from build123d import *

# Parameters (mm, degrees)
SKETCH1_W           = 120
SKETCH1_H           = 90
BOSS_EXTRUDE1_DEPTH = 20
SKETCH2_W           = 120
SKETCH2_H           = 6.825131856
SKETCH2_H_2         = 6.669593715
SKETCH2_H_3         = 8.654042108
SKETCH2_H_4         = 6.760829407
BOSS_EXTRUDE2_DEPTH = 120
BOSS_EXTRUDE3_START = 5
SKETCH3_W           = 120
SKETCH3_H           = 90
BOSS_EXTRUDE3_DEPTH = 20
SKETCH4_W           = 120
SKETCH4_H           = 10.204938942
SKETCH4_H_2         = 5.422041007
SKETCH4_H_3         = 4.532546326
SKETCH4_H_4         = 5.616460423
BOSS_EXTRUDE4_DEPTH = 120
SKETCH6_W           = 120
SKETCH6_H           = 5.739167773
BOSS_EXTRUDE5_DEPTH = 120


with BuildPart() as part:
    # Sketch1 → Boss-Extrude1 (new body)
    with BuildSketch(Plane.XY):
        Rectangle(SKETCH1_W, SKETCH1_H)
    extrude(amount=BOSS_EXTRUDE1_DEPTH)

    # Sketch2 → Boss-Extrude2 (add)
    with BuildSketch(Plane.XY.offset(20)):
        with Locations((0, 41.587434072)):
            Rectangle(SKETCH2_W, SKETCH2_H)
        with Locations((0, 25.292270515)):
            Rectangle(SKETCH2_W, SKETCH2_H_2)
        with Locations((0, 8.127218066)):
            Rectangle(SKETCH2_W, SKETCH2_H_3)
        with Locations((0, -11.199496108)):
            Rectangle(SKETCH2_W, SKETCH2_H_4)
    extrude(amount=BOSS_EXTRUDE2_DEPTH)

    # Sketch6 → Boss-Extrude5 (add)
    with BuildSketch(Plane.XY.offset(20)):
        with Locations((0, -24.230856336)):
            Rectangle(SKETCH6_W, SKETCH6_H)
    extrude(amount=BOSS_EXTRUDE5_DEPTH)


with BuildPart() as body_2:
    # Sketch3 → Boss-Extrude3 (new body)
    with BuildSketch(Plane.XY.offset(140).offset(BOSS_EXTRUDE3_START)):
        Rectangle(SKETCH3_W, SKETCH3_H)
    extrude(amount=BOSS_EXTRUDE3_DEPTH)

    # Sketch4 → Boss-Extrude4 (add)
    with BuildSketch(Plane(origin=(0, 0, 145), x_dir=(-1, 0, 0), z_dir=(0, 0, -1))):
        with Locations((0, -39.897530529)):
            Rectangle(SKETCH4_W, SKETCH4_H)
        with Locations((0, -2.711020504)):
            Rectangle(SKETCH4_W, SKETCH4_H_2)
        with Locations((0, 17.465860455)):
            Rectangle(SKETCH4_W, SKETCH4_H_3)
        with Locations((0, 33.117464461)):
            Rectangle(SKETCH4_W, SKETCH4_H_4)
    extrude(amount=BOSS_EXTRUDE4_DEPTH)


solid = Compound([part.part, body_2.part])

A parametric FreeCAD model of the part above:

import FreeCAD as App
import Part
import Sketcher
from FreeCAD import Vector

doc = App.newDocument("Part")
body = doc.addObject("PartDesign::Body", "Body")

# Sketch on XY plane
sketch1 = body.newObject("Sketcher::SketchObject", "Sketch")
sketch1.AttachmentSupport = (doc.getObject("XY_Plane"), [""])
sketch1.MapMode = "FlatFace"
sketch1.addGeometry([
    Part.LineSegment(Vector(-60, 45, 0), Vector(-60, -45, 0)),
    Part.LineSegment(Vector(-60, -45, 0), Vector(60, -45, 0)),
    Part.LineSegment(Vector(60, -45, 0), Vector(60, 45, 0)),
    Part.LineSegment(Vector(60, 45, 0), Vector(-60, 45, 0)),
], False)
sketch1.addConstraint([
    Sketcher.Constraint("Coincident", 0, 2, 1, 1),
    Sketcher.Constraint("Coincident", 1, 2, 2, 1),
    Sketcher.Constraint("Coincident", 2, 2, 3, 1),
    Sketcher.Constraint("Coincident", 3, 2, 0, 1),
    Sketcher.Constraint("Vertical", 0),
    Sketcher.Constraint("Horizontal", 1),
    Sketcher.Constraint("Vertical", 2),
    Sketcher.Constraint("Horizontal", 3),
    Sketcher.Constraint("Symmetric", 0, 2, 2, 2, -1, 1),
    Sketcher.Constraint("DistanceX", 1, 1, 1, 2, 120.0),
    Sketcher.Constraint("DistanceY", 0, 2, 0, 1, 90.0),
])
pad1 = body.newObject("PartDesign::Pad", "Pad")
pad1.Profile = sketch1
pad1.Length = 20

# Sketch on XY plane
sketch2 = body.newObject("Sketcher::SketchObject", "Sketch001")
sketch2.AttachmentSupport = (doc.getObject("XY_Plane"), [""])
sketch2.MapMode = "FlatFace"
sketch2.AttachmentOffset = App.Placement(Vector(0, 0, 20), App.Rotation())
sketch2.addGeometry([
    Part.LineSegment(Vector(-60, 45, 0), Vector(-60, 38, 0)),  # 0
    Part.LineSegment(Vector(-60, 38, 0), Vector(60, 38, 0)),  # 1
    Part.LineSegment(Vector(60, 38, 0), Vector(60, 45, 0)),  # 2
    Part.LineSegment(Vector(60, 45, 0), Vector(-60, 45, 0)),  # 3
    Part.LineSegment(Vector(-60, 29, 0), Vector(-60, 22, 0)),  # 4
    Part.LineSegment(Vector(-60, 22, 0), Vector(60, 22, 0)),  # 5
    Part.LineSegment(Vector(60, 22, 0), Vector(60, 29, 0)),  # 6
    Part.LineSegment(Vector(60, 29, 0), Vector(-60, 29, 0)),  # 7
    Part.LineSegment(Vector(-60, 12, 0), Vector(-60, 4, 0)),  # 8
    Part.LineSegment(Vector(-60, 4, 0), Vector(60, 4, 0)),  # 9
    Part.LineSegment(Vector(60, 4, 0), Vector(60, 12, 0)),  # 10
    Part.LineSegment(Vector(60, 12, 0), Vector(-60, 12, 0)),  # 11
    Part.LineSegment(Vector(-60, -8, 0), Vector(-60, -15, 0)),  # 12
    Part.LineSegment(Vector(-60, -15, 0), Vector(60, -15, 0)),  # 13
    Part.LineSegment(Vector(60, -15, 0), Vector(60, -8, 0)),  # 14
    Part.LineSegment(Vector(60, -8, 0), Vector(-60, -8, 0)),  # 15
], False)
sketch2.addConstraint([
    Sketcher.Constraint("Coincident", 0, 2, 1, 1),
    Sketcher.Constraint("Coincident", 1, 2, 2, 1),
    Sketcher.Constraint("Coincident", 2, 2, 3, 1),
    Sketcher.Constraint("Coincident", 3, 2, 0, 1),
    Sketcher.Constraint("Coincident", 4, 2, 5, 1),
    Sketcher.Constraint("Coincident", 5, 2, 6, 1),
    Sketcher.Constraint("Coincident", 6, 2, 7, 1),
    Sketcher.Constraint("Coincident", 7, 2, 4, 1),
    Sketcher.Constraint("Coincident", 8, 2, 9, 1),
    Sketcher.Constraint("Coincident", 9, 2, 10, 1),
    Sketcher.Constraint("Coincident", 10, 2, 11, 1),
    Sketcher.Constraint("Coincident", 11, 2, 8, 1),
    Sketcher.Constraint("Coincident", 12, 2, 13, 1),
    Sketcher.Constraint("Coincident", 13, 2, 14, 1),
    Sketcher.Constraint("Coincident", 14, 2, 15, 1),
    Sketcher.Constraint("Coincident", 15, 2, 12, 1),
    Sketcher.Constraint("Vertical", 0),
    Sketcher.Constraint("Horizontal", 1),
    Sketcher.Constraint("Vertical", 2),
    Sketcher.Constraint("Horizontal", 3),
    Sketcher.Constraint("Vertical", 4),
    Sketcher.Constraint("Horizontal", 5),
    Sketcher.Constraint("Vertical", 6),
    Sketcher.Constraint("Horizontal", 7),
    Sketcher.Constraint("Vertical", 8),
    Sketcher.Constraint("Horizontal", 9),
    Sketcher.Constraint("Vertical", 10),
    Sketcher.Constraint("Horizontal", 11),
    Sketcher.Constraint("Vertical", 12),
    Sketcher.Constraint("Horizontal", 13),
    Sketcher.Constraint("Vertical", 14),
    Sketcher.Constraint("Horizontal", 15),
    Sketcher.Constraint("Vertical", 3, 2, 4, 2),
    Sketcher.Constraint("Vertical", 2, 2, 5, 2),
    Sketcher.Constraint("Vertical", 7, 2, 8, 2),
    Sketcher.Constraint("Vertical", 6, 2, 9, 2),
    Sketcher.Constraint("Vertical", 11, 2, 12, 2),
    Sketcher.Constraint("Vertical", 10, 2, 13, 2),
    Sketcher.Constraint("DistanceX", 1, 1, 1, 2, 120.0),
    Sketcher.Constraint("DistanceX", 0, 2, -1, 1, 60.0),
    Sketcher.Constraint("DistanceY", -1, 1, 2, 2, 45.0),
    Sketcher.Constraint("DistanceY", 0, 2, 0, 1, 6.825132),
    Sketcher.Constraint("DistanceY", 12, 2, 12, 1, 6.760829),
    Sketcher.Constraint("DistanceY", 6, 2, 1, 2, 9.547801),
    Sketcher.Constraint("DistanceY", 4, 2, 4, 1, 6.669594),
    Sketcher.Constraint("DistanceY", 8, 2, 8, 1, 8.654042),
    Sketcher.Constraint("DistanceY", -1, 1, 10, 2, 12.454239),
    Sketcher.Constraint("DistanceY", 12, 2, -1, 1, 14.579911),
])
pad2 = body.newObject("PartDesign::Pad", "Pad001")
pad2.Profile = sketch2
pad2.Length = 120

# Sketch on XY plane
sketch3 = body.newObject("Sketcher::SketchObject", "Sketch002")
sketch3.AttachmentSupport = (doc.getObject("XY_Plane"), [""])
sketch3.MapMode = "FlatFace"
sketch3.AttachmentOffset = App.Placement(Vector(0, 0, 20), App.Rotation())
sketch3.addGeometry([
    Part.LineSegment(Vector(-60, -21, 0), Vector(-60, -27, 0)),
    Part.LineSegment(Vector(-60, -27, 0), Vector(60, -27, 0)),
    Part.LineSegment(Vector(60, -27, 0), Vector(60, -21, 0)),
    Part.LineSegment(Vector(60, -21, 0), Vector(-60, -21, 0)),
], False)
sketch3.addConstraint([
    Sketcher.Constraint("Coincident", 0, 2, 1, 1),
    Sketcher.Constraint("Coincident", 1, 2, 2, 1),
    Sketcher.Constraint("Coincident", 2, 2, 3, 1),
    Sketcher.Constraint("Coincident", 3, 2, 0, 1),
    Sketcher.Constraint("Vertical", 0),
    Sketcher.Constraint("Horizontal", 1),
    Sketcher.Constraint("Vertical", 2),
    Sketcher.Constraint("Horizontal", 3),
    Sketcher.Constraint("DistanceX", 1, 1, 1, 2, 120.0),
    Sketcher.Constraint("DistanceX", 0, 2, -1, 1, 60.0),
    Sketcher.Constraint("DistanceY", 0, 2, 0, 1, 5.739168),
    Sketcher.Constraint("DistanceY", 0, 2, -1, 1, 27.10044),
])
pad3 = body.newObject("PartDesign::Pad", "Pad002")
pad3.Profile = sketch3
pad3.Length = 120
body2 = doc.addObject("PartDesign::Body", "Body001")

# Sketch on XY plane
sketch4 = body2.newObject("Sketcher::SketchObject", "Sketch003")
sketch4.AttachmentSupport = (doc.getObject("XY_Plane001"), [""])
sketch4.MapMode = "FlatFace"
sketch4.AttachmentOffset = App.Placement(Vector(0, 0, 145), App.Rotation())
sketch4.addGeometry([
    Part.LineSegment(Vector(-60, 45, 0), Vector(-60, -45, 0)),
    Part.LineSegment(Vector(-60, -45, 0), Vector(60, -45, 0)),
    Part.LineSegment(Vector(60, -45, 0), Vector(60, 45, 0)),
    Part.LineSegment(Vector(60, 45, 0), Vector(-60, 45, 0)),
], False)
sketch4.addConstraint([
    Sketcher.Constraint("Coincident", 0, 2, 1, 1),
    Sketcher.Constraint("Coincident", 1, 2, 2, 1),
    Sketcher.Constraint("Coincident", 2, 2, 3, 1),
    Sketcher.Constraint("Coincident", 3, 2, 0, 1),
    Sketcher.Constraint("Vertical", 0),
    Sketcher.Constraint("Horizontal", 1),
    Sketcher.Constraint("Vertical", 2),
    Sketcher.Constraint("Horizontal", 3),
    Sketcher.Constraint("Symmetric", 0, 2, 2, 2, -1, 1),
    Sketcher.Constraint("DistanceX", 1, 1, 1, 2, 120.0),
    Sketcher.Constraint("DistanceY", 0, 2, 0, 1, 90.0),
])
pad4 = body2.newObject("PartDesign::Pad", "Pad003")
pad4.Profile = sketch4
pad4.Length = 20

# Sketch on XY plane
sketch5 = body2.newObject("Sketcher::SketchObject", "Sketch004")
sketch5.AttachmentSupport = (doc.getObject("XY_Plane001"), [""])
sketch5.MapMode = "FlatFace"
sketch5.AttachmentOffset = App.Placement(Vector(0, 0, 145), App.Rotation())
sketch5.addGeometry([
    Part.LineSegment(Vector(60, -34.8, 0), Vector(60, -45, 0)),  # 0
    Part.LineSegment(Vector(60, -45, 0), Vector(-60, -45, 0)),  # 1
    Part.LineSegment(Vector(-60, -45, 0), Vector(-60, -34.8, 0)),  # 2
    Part.LineSegment(Vector(-60, -34.8, 0), Vector(60, -34.8, 0)),  # 3
    Part.LineSegment(Vector(60, 0, 0), Vector(60, -5.4, 0)),  # 4
    Part.LineSegment(Vector(60, -5.4, 0), Vector(-60, -5.4, 0)),  # 5
    Part.LineSegment(Vector(-60, -5.4, 0), Vector(-60, 0, 0)),  # 6
    Part.LineSegment(Vector(-60, 0, 0), Vector(60, 0, 0)),  # 7
    Part.LineSegment(Vector(60, 19.7, 0), Vector(60, 15.2, 0)),  # 8
    Part.LineSegment(Vector(60, 15.2, 0), Vector(-60, 15.2, 0)),  # 9
    Part.LineSegment(Vector(-60, 15.2, 0), Vector(-60, 19.7, 0)),  # 10
    Part.LineSegment(Vector(-60, 19.7, 0), Vector(60, 19.7, 0)),  # 11
    Part.LineSegment(Vector(60, 35.9, 0), Vector(60, 30.3, 0)),  # 12
    Part.LineSegment(Vector(60, 30.3, 0), Vector(-60, 30.3, 0)),  # 13
    Part.LineSegment(Vector(-60, 30.3, 0), Vector(-60, 35.9, 0)),  # 14
    Part.LineSegment(Vector(-60, 35.9, 0), Vector(60, 35.9, 0)),  # 15
], False)
sketch5.addConstraint([
    Sketcher.Constraint("Coincident", 0, 2, 1, 1),
    Sketcher.Constraint("Coincident", 1, 2, 2, 1),
    Sketcher.Constraint("Coincident", 2, 2, 3, 1),
    Sketcher.Constraint("Coincident", 3, 2, 0, 1),
    Sketcher.Constraint("Coincident", 4, 2, 5, 1),
    Sketcher.Constraint("Coincident", 5, 2, 6, 1),
    Sketcher.Constraint("Coincident", 6, 2, 7, 1),
    Sketcher.Constraint("Coincident", 7, 2, 4, 1),
    Sketcher.Constraint("Coincident", 8, 2, 9, 1),
    Sketcher.Constraint("Coincident", 9, 2, 10, 1),
    Sketcher.Constraint("Coincident", 10, 2, 11, 1),
    Sketcher.Constraint("Coincident", 11, 2, 8, 1),
    Sketcher.Constraint("Coincident", 12, 2, 13, 1),
    Sketcher.Constraint("Coincident", 13, 2, 14, 1),
    Sketcher.Constraint("Coincident", 14, 2, 15, 1),
    Sketcher.Constraint("Coincident", 15, 2, 12, 1),
    Sketcher.Constraint("Vertical", 0),
    Sketcher.Constraint("Horizontal", 1),
    Sketcher.Constraint("Vertical", 2),
    Sketcher.Constraint("Horizontal", 3),
    Sketcher.Constraint("Vertical", 4),
    Sketcher.Constraint("Horizontal", 5),
    Sketcher.Constraint("Vertical", 6),
    Sketcher.Constraint("Horizontal", 7),
    Sketcher.Constraint("Vertical", 8),
    Sketcher.Constraint("Horizontal", 9),
    Sketcher.Constraint("Vertical", 10),
    Sketcher.Constraint("Horizontal", 11),
    Sketcher.Constraint("Vertical", 12),
    Sketcher.Constraint("Horizontal", 13),
    Sketcher.Constraint("Vertical", 14),
    Sketcher.Constraint("Horizontal", 15),
    Sketcher.Constraint("Symmetric", 6, 2, 7, 2, -1, 1),
    Sketcher.Constraint("Vertical", 3, 2, 4, 2),
    Sketcher.Constraint("Vertical", 2, 2, 5, 2),
    Sketcher.Constraint("Vertical", 7, 2, 8, 2),
    Sketcher.Constraint("Vertical", 6, 2, 9, 2),
    Sketcher.Constraint("Vertical", 11, 2, 12, 2),
    Sketcher.Constraint("Vertical", 10, 2, 13, 2),
    Sketcher.Constraint("DistanceX", 1, 2, 1, 1, 120.0),
    Sketcher.Constraint("DistanceY", 0, 2, -1, 1, 45.0),
    Sketcher.Constraint("DistanceY", 0, 2, 0, 1, 10.204939),
    Sketcher.Constraint("DistanceY", 4, 2, 4, 1, 5.422041),
    Sketcher.Constraint("DistanceY", 12, 2, 12, 1, 5.61646),
    Sketcher.Constraint("DistanceY", 11, 2, 12, 2, 10.577101),
    Sketcher.Constraint("DistanceY", 8, 2, 8, 1, 4.532546),
    Sketcher.Constraint("DistanceY", 4, 2, 8, 2, 20.621628),
])
pad5 = body2.newObject("PartDesign::Pad", "Pad004")
pad5.Profile = sketch5
pad5.Length = 120
pad5.Reversed = True

doc.recompute()
